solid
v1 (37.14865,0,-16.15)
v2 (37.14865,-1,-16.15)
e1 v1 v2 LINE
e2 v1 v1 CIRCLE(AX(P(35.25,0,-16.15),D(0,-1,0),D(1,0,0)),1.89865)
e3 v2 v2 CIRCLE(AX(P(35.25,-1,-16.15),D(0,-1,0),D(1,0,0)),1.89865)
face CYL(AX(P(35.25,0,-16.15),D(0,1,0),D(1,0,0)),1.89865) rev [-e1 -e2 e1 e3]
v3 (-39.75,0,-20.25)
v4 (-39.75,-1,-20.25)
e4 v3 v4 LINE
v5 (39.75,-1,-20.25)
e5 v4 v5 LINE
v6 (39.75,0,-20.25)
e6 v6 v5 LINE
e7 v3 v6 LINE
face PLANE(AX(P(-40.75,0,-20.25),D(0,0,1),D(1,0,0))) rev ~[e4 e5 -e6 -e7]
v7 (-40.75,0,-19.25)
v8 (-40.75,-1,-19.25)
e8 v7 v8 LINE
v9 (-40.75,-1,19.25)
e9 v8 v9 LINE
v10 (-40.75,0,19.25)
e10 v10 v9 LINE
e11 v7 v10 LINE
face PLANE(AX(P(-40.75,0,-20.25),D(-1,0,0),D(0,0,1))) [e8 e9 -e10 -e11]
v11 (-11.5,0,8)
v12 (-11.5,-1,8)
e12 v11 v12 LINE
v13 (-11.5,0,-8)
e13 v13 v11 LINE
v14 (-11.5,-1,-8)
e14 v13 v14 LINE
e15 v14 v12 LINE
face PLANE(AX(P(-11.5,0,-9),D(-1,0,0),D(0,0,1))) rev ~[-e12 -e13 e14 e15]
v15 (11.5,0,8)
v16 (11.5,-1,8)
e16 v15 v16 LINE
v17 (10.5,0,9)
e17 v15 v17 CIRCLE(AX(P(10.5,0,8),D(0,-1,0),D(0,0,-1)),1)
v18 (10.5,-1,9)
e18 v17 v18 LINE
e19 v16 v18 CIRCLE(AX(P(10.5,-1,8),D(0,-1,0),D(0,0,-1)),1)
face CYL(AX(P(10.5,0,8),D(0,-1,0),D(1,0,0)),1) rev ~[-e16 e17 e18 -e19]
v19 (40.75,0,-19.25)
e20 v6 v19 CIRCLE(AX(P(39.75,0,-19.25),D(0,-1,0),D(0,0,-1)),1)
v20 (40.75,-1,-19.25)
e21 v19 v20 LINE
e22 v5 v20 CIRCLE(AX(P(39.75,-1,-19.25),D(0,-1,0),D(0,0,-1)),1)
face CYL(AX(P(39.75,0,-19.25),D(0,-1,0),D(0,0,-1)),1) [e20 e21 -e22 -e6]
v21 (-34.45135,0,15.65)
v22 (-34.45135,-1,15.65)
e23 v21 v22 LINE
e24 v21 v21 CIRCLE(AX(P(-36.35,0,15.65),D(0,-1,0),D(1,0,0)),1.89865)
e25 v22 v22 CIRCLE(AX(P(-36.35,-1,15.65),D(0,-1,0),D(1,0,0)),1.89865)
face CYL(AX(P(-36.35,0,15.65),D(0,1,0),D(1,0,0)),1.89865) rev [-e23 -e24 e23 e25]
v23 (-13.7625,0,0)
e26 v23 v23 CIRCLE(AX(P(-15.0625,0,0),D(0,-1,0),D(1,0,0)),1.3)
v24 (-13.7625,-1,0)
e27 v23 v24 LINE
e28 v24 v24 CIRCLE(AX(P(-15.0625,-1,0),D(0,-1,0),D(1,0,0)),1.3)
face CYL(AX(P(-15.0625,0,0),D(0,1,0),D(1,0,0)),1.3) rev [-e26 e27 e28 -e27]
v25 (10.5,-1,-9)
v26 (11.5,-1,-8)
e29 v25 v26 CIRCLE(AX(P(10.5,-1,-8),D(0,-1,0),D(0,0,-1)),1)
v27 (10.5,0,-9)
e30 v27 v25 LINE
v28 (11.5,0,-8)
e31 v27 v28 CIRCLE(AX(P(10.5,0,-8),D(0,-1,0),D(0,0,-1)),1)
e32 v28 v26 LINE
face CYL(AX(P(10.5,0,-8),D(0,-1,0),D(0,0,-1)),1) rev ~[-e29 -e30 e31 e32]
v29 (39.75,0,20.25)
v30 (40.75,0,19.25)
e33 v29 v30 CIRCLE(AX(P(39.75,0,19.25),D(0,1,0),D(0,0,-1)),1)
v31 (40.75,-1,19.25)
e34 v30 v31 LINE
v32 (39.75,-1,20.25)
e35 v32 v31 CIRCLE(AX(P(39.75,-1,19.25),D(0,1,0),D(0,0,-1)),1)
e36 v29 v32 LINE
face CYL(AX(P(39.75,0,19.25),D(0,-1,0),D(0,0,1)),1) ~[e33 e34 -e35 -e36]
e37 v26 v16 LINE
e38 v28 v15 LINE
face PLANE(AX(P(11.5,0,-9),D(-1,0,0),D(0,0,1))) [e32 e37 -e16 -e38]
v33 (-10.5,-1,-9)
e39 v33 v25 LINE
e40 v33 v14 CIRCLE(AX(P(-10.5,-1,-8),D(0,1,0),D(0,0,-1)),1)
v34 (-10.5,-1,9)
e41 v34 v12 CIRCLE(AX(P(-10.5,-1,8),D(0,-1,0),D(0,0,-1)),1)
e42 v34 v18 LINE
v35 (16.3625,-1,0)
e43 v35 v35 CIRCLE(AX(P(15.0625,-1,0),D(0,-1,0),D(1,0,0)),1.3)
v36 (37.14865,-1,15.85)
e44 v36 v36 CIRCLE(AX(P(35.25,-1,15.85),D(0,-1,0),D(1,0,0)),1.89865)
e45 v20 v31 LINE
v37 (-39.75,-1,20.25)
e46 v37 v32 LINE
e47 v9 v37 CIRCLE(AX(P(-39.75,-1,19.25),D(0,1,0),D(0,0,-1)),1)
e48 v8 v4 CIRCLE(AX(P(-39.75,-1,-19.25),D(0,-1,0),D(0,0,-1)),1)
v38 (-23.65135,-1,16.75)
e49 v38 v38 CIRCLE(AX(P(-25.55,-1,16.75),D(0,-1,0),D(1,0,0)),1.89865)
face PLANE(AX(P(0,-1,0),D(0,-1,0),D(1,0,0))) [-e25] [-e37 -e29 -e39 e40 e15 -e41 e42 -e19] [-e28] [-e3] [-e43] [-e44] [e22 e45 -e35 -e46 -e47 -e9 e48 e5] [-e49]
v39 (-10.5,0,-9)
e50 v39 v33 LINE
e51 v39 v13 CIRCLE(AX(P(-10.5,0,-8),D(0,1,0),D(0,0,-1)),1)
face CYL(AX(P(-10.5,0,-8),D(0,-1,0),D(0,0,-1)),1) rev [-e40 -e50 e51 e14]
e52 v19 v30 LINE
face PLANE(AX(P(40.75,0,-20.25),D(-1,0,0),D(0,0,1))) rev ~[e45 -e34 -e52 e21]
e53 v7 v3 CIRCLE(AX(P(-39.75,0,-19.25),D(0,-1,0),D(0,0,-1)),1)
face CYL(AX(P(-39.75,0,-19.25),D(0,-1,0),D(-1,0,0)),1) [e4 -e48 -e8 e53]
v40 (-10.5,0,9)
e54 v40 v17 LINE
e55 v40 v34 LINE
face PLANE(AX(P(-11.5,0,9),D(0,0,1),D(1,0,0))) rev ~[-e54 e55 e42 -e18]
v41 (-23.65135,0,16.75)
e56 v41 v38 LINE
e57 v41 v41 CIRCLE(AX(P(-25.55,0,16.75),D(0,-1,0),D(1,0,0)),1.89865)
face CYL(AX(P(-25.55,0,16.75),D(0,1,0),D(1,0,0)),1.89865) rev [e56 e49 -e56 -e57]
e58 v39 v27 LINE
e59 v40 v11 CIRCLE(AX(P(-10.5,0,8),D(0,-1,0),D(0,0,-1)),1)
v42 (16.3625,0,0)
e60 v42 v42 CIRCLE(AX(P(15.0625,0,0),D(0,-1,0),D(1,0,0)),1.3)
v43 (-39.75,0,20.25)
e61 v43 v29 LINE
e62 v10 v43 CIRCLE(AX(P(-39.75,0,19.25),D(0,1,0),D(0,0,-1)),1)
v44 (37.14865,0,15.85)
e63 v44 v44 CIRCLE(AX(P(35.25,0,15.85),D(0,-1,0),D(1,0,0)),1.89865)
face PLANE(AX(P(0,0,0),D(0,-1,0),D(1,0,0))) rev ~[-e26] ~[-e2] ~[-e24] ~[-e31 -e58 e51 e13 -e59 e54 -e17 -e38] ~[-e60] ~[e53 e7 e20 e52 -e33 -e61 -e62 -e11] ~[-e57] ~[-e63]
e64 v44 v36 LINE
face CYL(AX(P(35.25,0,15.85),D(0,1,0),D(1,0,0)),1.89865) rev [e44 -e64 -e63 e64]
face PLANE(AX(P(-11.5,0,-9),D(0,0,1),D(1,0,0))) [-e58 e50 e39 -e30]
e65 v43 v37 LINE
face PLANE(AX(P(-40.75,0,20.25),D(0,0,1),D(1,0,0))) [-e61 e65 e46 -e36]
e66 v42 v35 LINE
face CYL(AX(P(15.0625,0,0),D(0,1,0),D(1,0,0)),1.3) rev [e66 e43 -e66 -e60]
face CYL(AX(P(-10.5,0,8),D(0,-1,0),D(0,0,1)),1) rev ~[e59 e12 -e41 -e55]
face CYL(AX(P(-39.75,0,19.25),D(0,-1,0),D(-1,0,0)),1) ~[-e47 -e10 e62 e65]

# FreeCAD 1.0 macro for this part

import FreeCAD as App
import Part
import Sketcher


def edges_at(feature, points):
    """Names of the edges that pass closest to the given points."""
    edges = feature.Shape.Edges
    near = lambda p: min(range(len(edges)), key=lambda i: edges[i].distToShape(Part.Vertex(*p))[0])
    return sorted({f"Edge{near(p) + 1}" for p in points})


def add_polygon(sketch, points):
    """Adds a closed chain of lines whose ends are joined by coincident constraints."""
    first, n = sketch.GeometryCount, len(points)
    for a, b in zip(points, points[1:] + points[:1]):
        sketch.addGeometry(Part.LineSegment(App.Vector(*a, 0), App.Vector(*b, 0)), False)
    for i in range(n):
        sketch.addConstraint(Sketcher.Constraint("Coincident", first + i, 2, first + (i + 1) % n, 1))

doc = App.newDocument("Part")
body = doc.addObject("PartDesign::Body", "Body")

sketch1 = body.newObject("Sketcher::SketchObject", "Sketch")
sketch1.AttachmentSupport = (doc.getObject("XY_Plane"), [""])
sketch1.MapMode = "FlatFace"
add_polygon(sketch1, [(-40.8, 20.2), (-40.8, -20.2), (40.8, -20.2), (40.8, 20.2)])
sketch1.addGeometry(Part.Circle(App.Vector(-15.1, 0, 0), App.Vector(0, 0, 1), 1.3), False)
sketch1.addGeometry(Part.Circle(App.Vector(35.2, -16.1, 0), App.Vector(0, 0, 1), 1.9), False)
add_polygon(sketch1, [(11.5, -9), (-11.5, -9), (-11.5, 9), (11.5, 9)])
sketch1.addGeometry(Part.Circle(App.Vector(15.1, 0, 0), App.Vector(0, 0, 1), 1.3), False)
sketch1.addGeometry(Part.Circle(App.Vector(-36.4, 15.7, 0), App.Vector(0, 0, 1), 1.9), False)
sketch1.addGeometry(Part.Circle(App.Vector(-25.6, 16.8, 0), App.Vector(0, 0, 1), 1.9), False)
sketch1.addGeometry(Part.Circle(App.Vector(35.2, 15.8, 0), App.Vector(0, 0, 1), 1.9), False)
sketch1.addConstraint([
    Sketcher.Constraint("Vertical", 0),
    Sketcher.Constraint("Horizontal", 1),
    Sketcher.Constraint("Vertical", 2),
    Sketcher.Constraint("Horizontal", 3),
    Sketcher.Constraint("Horizontal", 6),
    Sketcher.Constraint("Vertical", 7),
    Sketcher.Constraint("Horizontal", 8),
    Sketcher.Constraint("Vertical", 9),
    Sketcher.Constraint("Equal", 4, 10),
    Sketcher.Constraint("Equal", 5, 11),
    Sketcher.Constraint("Equal", 11, 12),
    Sketcher.Constraint("Equal", 12, 13),
    Sketcher.Constraint("Symmetric", 4, 3, 10, 3, -1, 1),
    Sketcher.Constraint("Symmetric", 0, 2, 2, 2, -1, 1),
    Sketcher.Constraint("Symmetric", 6, 2, 8, 2, -1, 1),
    Sketcher.Constraint("PointOnObject", 4, 3, -1),
    Sketcher.Constraint("Vertical", 5, 3, 13, 3),
    Sketcher.Constraint("Diameter", 4, 2.6),
    Sketcher.Constraint("DistanceX", 6, 2, 6, 1, 23.0),
    Sketcher.Constraint("DistanceY", 7, 1, 7, 2, 18.0),
    Sketcher.Constraint("DistanceX", 1, 1, 1, 2, 81.5),
    Sketcher.Constraint("DistanceY", 0, 2, 0, 1, 40.5),
    Sketcher.Constraint("DistanceY", 5, 3, 13, 3, 32.0),
    Sketcher.Constraint("DistanceY", 0, 2, 12, 3, 37.0),
    Sketcher.Constraint("DistanceX", 0, 2, 5, 3, 76.0),
    Sketcher.Constraint("Diameter", 5, 3.7973),
    Sketcher.Constraint("DistanceX", 11, 3, 5, 3, 71.6),
    Sketcher.Constraint("DistanceY", 5, 3, 11, 3, 31.8),
    Sketcher.Constraint("DistanceX", 11, 3, 12, 3, 10.8),
    Sketcher.Constraint("DistanceY", 11, 3, 12, 3, 1.1),
    Sketcher.Constraint("DistanceX", 4, 3, 10, 3, 30.125),
])
pad1 = body.newObject("PartDesign::Pad", "Pad")
pad1.Profile = sketch1
pad1.Length = 1
doc.recompute()

fillet = body.newObject("PartDesign::Fillet", "Fillet")
fillet.Base = (pad1, edges_at(pad1, [
    (-40.75, 20.25, 0.5),
    (40.75, 20.25, 0.5),
    (40.75, -20.25, 0.5),
    (-40.75, -20.25, 0.5),
]))
fillet.Radius = 1
doc.recompute()

fillet2 = body.newObject("PartDesign::Fillet", "Fillet001")
fillet2.Base = (fillet, edges_at(fillet, [
    (-11.5, 9, 0.5),
    (11.5, 9, 0.5),
    (11.5, -9, 0.5),
    (-11.5, -9, 0.5),
]))
fillet2.Radius = 1
body2 = doc.addObject("PartDesign::Body", "Body001")
doc.recompute()

body.Placement = App.Placement(App.Vector(0, 0, 0), App.Rotation(App.Vector(1, 0, 0), 90))
boolean = body2.newObject("PartDesign::Boolean", "Boolean")
boolean.Type = "Fuse"
boolean.addObjects([body])

doc.recompute()
